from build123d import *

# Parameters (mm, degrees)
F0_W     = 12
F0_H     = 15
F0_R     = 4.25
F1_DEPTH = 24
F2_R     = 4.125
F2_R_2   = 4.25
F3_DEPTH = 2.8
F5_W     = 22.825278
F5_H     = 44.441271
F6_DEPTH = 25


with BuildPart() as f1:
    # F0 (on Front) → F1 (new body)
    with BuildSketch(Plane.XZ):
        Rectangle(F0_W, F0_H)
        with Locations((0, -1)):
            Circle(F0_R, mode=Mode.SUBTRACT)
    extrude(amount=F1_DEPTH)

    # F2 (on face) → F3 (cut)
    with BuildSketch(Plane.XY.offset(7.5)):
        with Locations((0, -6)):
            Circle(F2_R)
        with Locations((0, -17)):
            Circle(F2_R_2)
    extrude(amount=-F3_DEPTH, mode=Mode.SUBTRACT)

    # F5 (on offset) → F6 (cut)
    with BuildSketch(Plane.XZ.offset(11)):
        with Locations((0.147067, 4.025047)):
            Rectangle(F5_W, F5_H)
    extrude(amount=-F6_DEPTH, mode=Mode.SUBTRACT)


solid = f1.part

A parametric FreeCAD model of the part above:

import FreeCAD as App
import Part
import Sketcher

V = App.Vector


def add_polygon(sketch, points):
    """Adds a closed chain of lines whose ends are joined by coincident constraints."""
    first, n = sketch.GeometryCount, len(points)
    for a, b in zip(points, points[1:] + points[:1]):
        sketch.addGeometry(Part.LineSegment(App.Vector(*a, 0), App.Vector(*b, 0)), False)
    for i in range(n):
        sketch.addConstraint(Sketcher.Constraint("Coincident", first + i, 2, first + (i + 1) % n, 1))

doc = App.newDocument("Part")
body = doc.addObject("PartDesign::Body", "Body")

# Sketch on XZ plane
sketch1 = body.newObject("Sketcher::SketchObject", "Sketch")
sketch1.AttachmentSupport = (doc.getObject("XZ_Plane"), [""])
sketch1.MapMode = "FlatFace"
add_polygon(sketch1, [(-6, 7.5), (-6, -7.5), (6, -7.5), (6, 7.5)])  # lines 0-3
sketch1.addGeometry(Part.Circle(V(0, -1, 0), V(0, 0, 1), 4.2), False)  # 4
sketch1.addConstraint([
    Sketcher.Constraint("Vertical", 0),
    Sketcher.Constraint("Horizontal", 1),
    Sketcher.Constraint("Vertical", 2),
    Sketcher.Constraint("Horizontal", 3),
    Sketcher.Constraint("Symmetric", 0, 2, 2, 2, -1, 1),
    Sketcher.Constraint("PointOnObject", 4, 3, -2),
    Sketcher.Constraint("Diameter", 4, 8.5),
    Sketcher.Constraint("DistanceX", 1, 1, 1, 2, 12.0),
    Sketcher.Constraint("DistanceY", 0, 2, 0, 1, 15.0),
    Sketcher.Constraint("DistanceY", 4, 3, -1, 1, 1.0),
])
pad1 = body.newObject("PartDesign::Pad", "Pad")
pad1.Profile = sketch1
pad1.Length = 24

# Sketch on XY plane
sketch2 = body.newObject("Sketcher::SketchObject", "Sketch001")
sketch2.AttachmentSupport = (doc.getObject("XY_Plane"), [""])
sketch2.MapMode = "FlatFace"
sketch2.AttachmentOffset = App.Placement(V(0, 0, 7.5), App.Rotation())
sketch2.addGeometry([
    Part.Circle(V(0, -6, 0), V(0, 0, 1), 4.1),
    Part.Circle(V(0, -17, 0), V(0, 0, 1), 4.2),
], False)
sketch2.addConstraint([
    Sketcher.Constraint("PointOnObject", 0, 3, -2),
    Sketcher.Constraint("PointOnObject", 1, 3, -2),
    Sketcher.Constraint("Diameter", 1, 8.5),
    Sketcher.Constraint("Diameter", 0, 8.25),
    Sketcher.Constraint("DistanceY", 0, 3, -1, 1, 6.0),
    Sketcher.Constraint("DistanceY", 1, 3, -1, 1, 17.0),
])
pocket1 = body.newObject("PartDesign::Pocket", "Pocket")
pocket1.Profile = sketch2
pocket1.Length = 2.8

# Sketch on XZ plane
sketch3 = body.newObject("Sketcher::SketchObject", "Sketch002")
sketch3.AttachmentSupport = (doc.getObject("XZ_Plane"), [""])
sketch3.MapMode = "FlatFace"
sketch3.AttachmentOffset = App.Placement(V(0, 0, 11), App.Rotation())
add_polygon(sketch3, [(-11, 26), (-11, -18), (12, -18), (12, 26)])  # lines 0-3
sketch3.addConstraint([
    Sketcher.Constraint("Vertical", 0),
    Sketcher.Constraint("Horizontal", 1),
    Sketcher.Constraint("Vertical", 2),
    Sketcher.Constraint("Horizontal", 3),
    Sketcher.Constraint("DistanceX", 1, 1, 1, 2, 22.825278),
    Sketcher.Constraint("DistanceY", 0, 2, 0, 1, 44.441271),
    Sketcher.Constraint("DistanceY", 0, 2, -1, 1, 18.195588),
    Sketcher.Constraint("DistanceX", 0, 2, -1, 1, 11.265572),
])
pocket2 = body.newObject("PartDesign::Pocket", "Pocket001")
pocket2.Profile = sketch3
pocket2.Length = 25

doc.recompute()
